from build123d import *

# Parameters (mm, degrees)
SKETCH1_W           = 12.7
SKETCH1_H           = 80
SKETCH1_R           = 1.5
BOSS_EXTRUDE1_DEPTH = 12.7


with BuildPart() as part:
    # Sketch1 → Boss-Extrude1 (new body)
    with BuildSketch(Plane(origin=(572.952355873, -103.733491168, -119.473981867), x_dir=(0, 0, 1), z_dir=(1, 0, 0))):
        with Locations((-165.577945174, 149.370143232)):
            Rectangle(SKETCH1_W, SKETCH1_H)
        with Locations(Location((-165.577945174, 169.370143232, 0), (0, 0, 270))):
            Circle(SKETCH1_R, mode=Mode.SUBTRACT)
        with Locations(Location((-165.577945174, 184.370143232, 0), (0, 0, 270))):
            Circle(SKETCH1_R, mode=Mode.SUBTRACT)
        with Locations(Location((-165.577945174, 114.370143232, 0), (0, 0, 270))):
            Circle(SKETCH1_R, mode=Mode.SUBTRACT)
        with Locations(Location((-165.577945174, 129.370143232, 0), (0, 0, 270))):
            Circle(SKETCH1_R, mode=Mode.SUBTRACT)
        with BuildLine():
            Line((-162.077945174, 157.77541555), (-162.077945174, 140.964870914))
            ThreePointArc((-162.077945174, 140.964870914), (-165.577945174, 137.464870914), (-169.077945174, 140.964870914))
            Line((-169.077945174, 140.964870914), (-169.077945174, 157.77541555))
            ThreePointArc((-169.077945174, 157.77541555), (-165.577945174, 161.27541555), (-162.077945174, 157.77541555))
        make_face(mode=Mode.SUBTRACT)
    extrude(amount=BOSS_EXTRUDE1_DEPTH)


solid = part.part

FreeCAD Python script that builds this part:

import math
import FreeCAD as App
import Part
import Sketcher
from FreeCAD import Vector
Q = App.Units.Quantity

doc = App.newDocument("Part")
body = doc.addObject("PartDesign::Body", "Body")

# Sketch on YZ plane
sketch1 = body.newObject("Sketcher::SketchObject", "Sketch")
sketch1.AttachmentSupport = (doc.getObject("YZ_Plane"), [""])
sketch1.MapMode = "FlatFace"
sketch1.AttachmentOffset = App.Placement(Vector(0, 0, 572.952356), App.Rotation())
sketch1.addGeometry(Part.LineSegment(Vector(-293.103634, -291.401927, 0), Vector(-213.103634, -291.401927, 0)), False)
sketch1.addGeometry(Part.LineSegment(Vector(-213.103634, -291.401927, 0), Vector(-213.103634, -278.701927, 0)), False)
sketch1.addGeometry(Part.LineSegment(Vector(-213.103634, -278.701927, 0), Vector(-293.103634, -278.701927, 0)), False)
sketch1.addGeometry(Part.LineSegment(Vector(-293.103634, -278.701927, 0), Vector(-293.103634, -291.401927, 0)), False)
sketch1.addGeometry(Part.Circle(Vector(-218.103634, -285.051927, 0), Vector(0, 0, 1), 1.5), False)
sketch1.addGeometry(Part.Circle(Vector(-233.103634, -285.051927, 0), Vector(0, 0, 1), 1.5), False)
sketch1.addGeometry(Part.ArcOfCircle(Part.Circle(Vector(-261.508907, -285.051927, 0), Vector(0, 0, 1), 3.5), math.radians(90), math.radians(270)), False)
sketch1.addGeometry(Part.LineSegment(Vector(-261.508907, -281.551927, 0), Vector(-244.698362, -281.551927, 0)), False)
sketch1.addGeometry(Part.ArcOfCircle(Part.Circle(Vector(-244.698362, -285.051927, 0), Vector(0, 0, 1), 3.5), math.radians(-90), math.radians(90)), False)
sketch1.addGeometry(Part.LineSegment(Vector(-244.698362, -288.551927, 0), Vector(-261.508907, -288.551927, 0)), False)
sketch1.addGeometry(Part.Circle(Vector(-273.103634, -285.051927, 0), Vector(0, 0, 1), 1.5), False)
sketch1.addGeometry(Part.Circle(Vector(-288.103634, -285.051927, 0), Vector(0, 0, 1), 1.5), False)
sketch1.addConstraint(Sketcher.Constraint("Coincident", 0, 2, 1, 1))
sketch1.addConstraint(Sketcher.Constraint("Coincident", 1, 2, 2, 1))
sketch1.addConstraint(Sketcher.Constraint("Coincident", 2, 2, 3, 1))
sketch1.addConstraint(Sketcher.Constraint("Coincident", 3, 2, 0, 1))
sketch1.addConstraint(Sketcher.Constraint("Tangent", 6, 1, 7, 1))
sketch1.addConstraint(Sketcher.Constraint("Tangent", 7, 2, 8, 2))
sketch1.addConstraint(Sketcher.Constraint("Tangent", 8, 1, 9, 1))
sketch1.addConstraint(Sketcher.Constraint("Tangent", 9, 2, 6, 2))
sketch1.addConstraint(Sketcher.Constraint("Horizontal", 0))
sketch1.addConstraint(Sketcher.Constraint("Vertical", 1))
sketch1.addConstraint(Sketcher.Constraint("Horizontal", 2))
sketch1.addConstraint(Sketcher.Constraint("Vertical", 3))
sketch1.addConstraint(Sketcher.Constraint("Horizontal", 7))
sketch1.addConstraint(Sketcher.Constraint("Horizontal", 9))
sketch1.addConstraint(Sketcher.Constraint("Equal", 4, 5))
sketch1.addConstraint(Sketcher.Constraint("Equal", 5, 10))
sketch1.addConstraint(Sketcher.Constraint("Equal", 10, 11))
sketch1.addConstraint(Sketcher.Constraint("Horizontal", 4, 3, 5, 3))
sketch1.addConstraint(Sketcher.Constraint("Horizontal", 5, 3, 6, 3))
sketch1.addConstraint(Sketcher.Constraint("Horizontal", 8, 3, 10, 3))
sketch1.addConstraint(Sketcher.Constraint("Horizontal", 10, 3, 11, 3))
sketch1.addConstraint(Sketcher.Constraint("Diameter", 4, Q("3 mm")))
sketch1.addConstraint(Sketcher.Constraint("Radius", 6, Q("3.5 mm")))
sketch1.addConstraint(Sketcher.Constraint("DistanceX", 0, 1, 0, 2, Q("80 mm")))
sketch1.addConstraint(Sketcher.Constraint("DistanceY", 1, 1, 1, 2, Q("12.7 mm")))
sketch1.addConstraint(Sketcher.Constraint("DistanceX", 5, 3, 4, 3, Q("15 mm")))
sketch1.addConstraint(Sketcher.Constraint("DistanceX", 10, 3, 5, 3, Q("40 mm")))
sketch1.addConstraint(Sketcher.Constraint("DistanceX", 11, 3, 10, 3, Q("15 mm")))
sketch1.addConstraint(Sketcher.Constraint("DistanceX", 4, 3, 0, 2, Q("5 mm")))
sketch1.addConstraint(Sketcher.Constraint("DistanceY", 0, 2, 4, 3, Q("6.35 mm")))
sketch1.addConstraint(Sketcher.Constraint("DistanceX", 7, 1, 7, 2, Q("16.810545 mm")))
sketch1.addConstraint(Sketcher.Constraint("DistanceX", 4, 3, -1, 1, Q("218.103634 mm")))
sketch1.addConstraint(Sketcher.Constraint("DistanceY", 4, 3, -1, 1, Q("285.051927 mm")))
sketch1.addConstraint(Sketcher.Constraint("DistanceX", 6, 3, -1, 1, Q("261.508907 mm")))
pad1 = body.newObject("PartDesign::Pad", "Pad")
pad1.Profile = sketch1
pad1.Length = 12.7

doc.recompute()
